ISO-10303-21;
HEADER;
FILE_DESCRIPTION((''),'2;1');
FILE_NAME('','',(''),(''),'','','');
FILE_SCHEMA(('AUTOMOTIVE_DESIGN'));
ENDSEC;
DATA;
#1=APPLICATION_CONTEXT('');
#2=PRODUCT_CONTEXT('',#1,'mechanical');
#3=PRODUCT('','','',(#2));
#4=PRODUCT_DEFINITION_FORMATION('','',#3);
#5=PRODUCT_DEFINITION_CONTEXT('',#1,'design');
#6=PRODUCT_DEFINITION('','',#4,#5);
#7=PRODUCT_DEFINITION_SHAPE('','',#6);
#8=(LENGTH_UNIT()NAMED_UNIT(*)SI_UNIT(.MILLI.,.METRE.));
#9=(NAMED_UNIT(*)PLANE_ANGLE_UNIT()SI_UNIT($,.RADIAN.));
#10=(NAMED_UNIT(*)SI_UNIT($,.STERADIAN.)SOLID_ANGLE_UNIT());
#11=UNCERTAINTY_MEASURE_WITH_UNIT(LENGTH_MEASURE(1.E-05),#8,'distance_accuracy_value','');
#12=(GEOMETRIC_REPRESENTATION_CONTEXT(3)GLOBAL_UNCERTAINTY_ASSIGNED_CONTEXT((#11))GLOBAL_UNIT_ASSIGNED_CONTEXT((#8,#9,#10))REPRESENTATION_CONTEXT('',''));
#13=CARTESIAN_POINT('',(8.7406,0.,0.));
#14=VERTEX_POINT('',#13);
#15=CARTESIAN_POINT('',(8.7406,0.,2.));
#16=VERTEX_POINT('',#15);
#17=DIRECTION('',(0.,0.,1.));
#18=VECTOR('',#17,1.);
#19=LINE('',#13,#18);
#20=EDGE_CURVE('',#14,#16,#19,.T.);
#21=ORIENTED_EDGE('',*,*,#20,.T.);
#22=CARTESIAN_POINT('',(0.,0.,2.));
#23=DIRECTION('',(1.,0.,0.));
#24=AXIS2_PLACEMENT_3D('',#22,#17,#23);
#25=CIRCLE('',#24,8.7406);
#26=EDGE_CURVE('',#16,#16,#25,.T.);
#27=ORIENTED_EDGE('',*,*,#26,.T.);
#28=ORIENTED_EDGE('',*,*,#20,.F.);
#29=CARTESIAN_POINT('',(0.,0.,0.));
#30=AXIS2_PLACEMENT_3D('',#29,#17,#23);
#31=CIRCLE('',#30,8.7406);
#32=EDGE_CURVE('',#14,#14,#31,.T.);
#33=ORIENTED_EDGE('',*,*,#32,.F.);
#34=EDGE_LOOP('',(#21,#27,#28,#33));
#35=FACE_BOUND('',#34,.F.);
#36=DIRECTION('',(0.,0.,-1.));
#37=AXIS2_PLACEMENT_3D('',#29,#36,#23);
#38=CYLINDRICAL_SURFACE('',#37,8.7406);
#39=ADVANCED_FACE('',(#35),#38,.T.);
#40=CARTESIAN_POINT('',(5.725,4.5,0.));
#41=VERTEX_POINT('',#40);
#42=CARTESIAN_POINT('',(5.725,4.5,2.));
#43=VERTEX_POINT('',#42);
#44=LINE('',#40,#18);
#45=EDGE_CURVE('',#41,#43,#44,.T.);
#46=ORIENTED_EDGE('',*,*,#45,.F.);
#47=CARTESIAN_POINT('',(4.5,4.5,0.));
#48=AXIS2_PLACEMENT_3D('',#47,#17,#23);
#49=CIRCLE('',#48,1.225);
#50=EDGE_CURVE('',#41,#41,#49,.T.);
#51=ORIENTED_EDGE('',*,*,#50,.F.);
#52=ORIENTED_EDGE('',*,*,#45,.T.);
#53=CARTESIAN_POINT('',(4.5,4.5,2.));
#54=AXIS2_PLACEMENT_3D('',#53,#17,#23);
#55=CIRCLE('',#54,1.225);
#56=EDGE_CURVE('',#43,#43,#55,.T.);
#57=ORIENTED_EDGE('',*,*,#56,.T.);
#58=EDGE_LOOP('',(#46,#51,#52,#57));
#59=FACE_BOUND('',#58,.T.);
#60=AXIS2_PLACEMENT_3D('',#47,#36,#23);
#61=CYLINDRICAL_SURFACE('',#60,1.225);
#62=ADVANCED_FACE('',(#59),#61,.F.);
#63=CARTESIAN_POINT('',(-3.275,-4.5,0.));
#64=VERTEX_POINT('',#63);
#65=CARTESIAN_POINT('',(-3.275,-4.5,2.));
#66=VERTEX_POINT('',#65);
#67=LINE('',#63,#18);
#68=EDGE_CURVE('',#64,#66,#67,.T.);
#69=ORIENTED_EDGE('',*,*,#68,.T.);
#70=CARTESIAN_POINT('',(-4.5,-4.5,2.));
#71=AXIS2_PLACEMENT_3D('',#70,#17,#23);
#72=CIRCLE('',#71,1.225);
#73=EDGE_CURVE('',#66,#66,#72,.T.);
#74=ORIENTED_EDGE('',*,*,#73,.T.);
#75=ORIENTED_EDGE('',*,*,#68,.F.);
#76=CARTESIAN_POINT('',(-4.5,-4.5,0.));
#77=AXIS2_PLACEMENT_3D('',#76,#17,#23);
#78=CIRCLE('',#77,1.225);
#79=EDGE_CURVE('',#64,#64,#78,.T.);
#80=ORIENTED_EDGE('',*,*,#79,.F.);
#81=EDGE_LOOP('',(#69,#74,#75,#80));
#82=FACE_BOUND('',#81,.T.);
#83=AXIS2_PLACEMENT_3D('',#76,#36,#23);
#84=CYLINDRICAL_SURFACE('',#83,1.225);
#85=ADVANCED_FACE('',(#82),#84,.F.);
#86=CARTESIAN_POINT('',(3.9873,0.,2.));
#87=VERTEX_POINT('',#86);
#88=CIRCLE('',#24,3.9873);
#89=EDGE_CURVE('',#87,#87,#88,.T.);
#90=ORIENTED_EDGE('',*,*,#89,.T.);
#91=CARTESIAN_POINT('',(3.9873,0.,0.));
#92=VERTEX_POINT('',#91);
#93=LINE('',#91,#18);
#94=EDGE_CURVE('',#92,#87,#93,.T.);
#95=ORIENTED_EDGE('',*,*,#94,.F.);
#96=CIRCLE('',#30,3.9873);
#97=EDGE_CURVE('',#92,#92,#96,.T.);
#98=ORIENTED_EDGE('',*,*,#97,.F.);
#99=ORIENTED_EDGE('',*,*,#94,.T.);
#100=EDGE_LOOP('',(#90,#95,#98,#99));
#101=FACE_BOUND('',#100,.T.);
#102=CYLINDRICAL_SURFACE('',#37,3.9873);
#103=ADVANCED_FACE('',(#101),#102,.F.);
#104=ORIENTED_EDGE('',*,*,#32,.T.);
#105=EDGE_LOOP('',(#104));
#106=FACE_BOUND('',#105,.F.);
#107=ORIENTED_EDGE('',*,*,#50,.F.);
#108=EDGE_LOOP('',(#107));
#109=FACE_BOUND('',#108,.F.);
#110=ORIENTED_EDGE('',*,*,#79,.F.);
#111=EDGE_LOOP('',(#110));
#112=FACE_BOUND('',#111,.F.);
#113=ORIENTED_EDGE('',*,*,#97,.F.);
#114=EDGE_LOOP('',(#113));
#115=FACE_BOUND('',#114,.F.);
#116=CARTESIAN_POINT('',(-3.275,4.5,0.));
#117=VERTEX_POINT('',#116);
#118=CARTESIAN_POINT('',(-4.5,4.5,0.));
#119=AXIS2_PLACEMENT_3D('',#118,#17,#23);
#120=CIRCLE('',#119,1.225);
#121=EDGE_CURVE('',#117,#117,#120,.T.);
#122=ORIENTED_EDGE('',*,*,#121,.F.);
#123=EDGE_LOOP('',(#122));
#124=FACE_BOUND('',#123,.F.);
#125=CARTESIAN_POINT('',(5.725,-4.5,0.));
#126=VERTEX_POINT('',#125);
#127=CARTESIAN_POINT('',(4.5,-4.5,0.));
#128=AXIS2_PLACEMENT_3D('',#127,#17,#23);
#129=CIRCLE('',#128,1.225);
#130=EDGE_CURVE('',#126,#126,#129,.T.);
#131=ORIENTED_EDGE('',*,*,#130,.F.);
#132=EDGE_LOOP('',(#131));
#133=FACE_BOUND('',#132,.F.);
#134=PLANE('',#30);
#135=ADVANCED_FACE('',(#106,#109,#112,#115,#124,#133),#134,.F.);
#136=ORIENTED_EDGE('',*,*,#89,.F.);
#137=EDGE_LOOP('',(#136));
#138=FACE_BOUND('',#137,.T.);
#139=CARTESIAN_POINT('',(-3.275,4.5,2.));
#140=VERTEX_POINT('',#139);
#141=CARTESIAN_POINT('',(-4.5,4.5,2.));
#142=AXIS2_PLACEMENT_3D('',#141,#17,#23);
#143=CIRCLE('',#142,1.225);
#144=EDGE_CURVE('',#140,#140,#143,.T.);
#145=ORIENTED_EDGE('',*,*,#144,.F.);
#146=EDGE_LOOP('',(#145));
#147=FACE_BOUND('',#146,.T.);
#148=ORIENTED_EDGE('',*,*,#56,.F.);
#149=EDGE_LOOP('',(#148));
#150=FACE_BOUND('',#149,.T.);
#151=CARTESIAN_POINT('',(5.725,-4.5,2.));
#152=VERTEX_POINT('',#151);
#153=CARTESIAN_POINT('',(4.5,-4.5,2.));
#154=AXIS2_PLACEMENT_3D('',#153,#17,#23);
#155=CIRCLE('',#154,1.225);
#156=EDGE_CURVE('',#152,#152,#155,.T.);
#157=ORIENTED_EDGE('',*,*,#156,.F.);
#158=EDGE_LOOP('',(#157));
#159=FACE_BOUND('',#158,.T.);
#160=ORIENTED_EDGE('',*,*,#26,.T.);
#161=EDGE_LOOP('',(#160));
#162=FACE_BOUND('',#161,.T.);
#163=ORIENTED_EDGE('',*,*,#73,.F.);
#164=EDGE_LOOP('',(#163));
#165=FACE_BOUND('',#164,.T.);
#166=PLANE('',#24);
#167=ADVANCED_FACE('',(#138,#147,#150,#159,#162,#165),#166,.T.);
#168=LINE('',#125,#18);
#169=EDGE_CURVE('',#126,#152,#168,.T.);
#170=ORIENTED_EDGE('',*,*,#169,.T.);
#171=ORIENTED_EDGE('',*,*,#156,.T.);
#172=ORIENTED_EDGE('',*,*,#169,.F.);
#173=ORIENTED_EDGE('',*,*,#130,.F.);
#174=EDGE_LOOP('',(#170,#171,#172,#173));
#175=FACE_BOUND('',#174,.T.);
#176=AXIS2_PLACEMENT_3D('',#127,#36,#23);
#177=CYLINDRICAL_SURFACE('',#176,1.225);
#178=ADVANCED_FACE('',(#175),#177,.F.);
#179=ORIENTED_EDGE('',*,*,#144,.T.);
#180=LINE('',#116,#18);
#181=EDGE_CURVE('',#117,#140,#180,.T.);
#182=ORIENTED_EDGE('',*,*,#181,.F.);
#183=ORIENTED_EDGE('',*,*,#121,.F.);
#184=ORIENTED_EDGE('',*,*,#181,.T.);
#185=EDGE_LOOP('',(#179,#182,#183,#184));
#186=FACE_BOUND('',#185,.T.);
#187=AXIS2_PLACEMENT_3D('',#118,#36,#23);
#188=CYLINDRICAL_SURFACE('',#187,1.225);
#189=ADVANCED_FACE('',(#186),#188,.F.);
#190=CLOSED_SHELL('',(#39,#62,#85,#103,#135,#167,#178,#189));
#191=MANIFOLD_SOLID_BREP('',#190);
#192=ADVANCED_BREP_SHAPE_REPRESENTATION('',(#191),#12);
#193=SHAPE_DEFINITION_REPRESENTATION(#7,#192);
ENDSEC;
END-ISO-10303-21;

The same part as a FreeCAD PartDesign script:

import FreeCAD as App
import Part
import Sketcher
from FreeCAD import Vector

doc = App.newDocument("Part")
body = doc.addObject("PartDesign::Body", "Body")

# Sketch on XY plane
sketch1 = body.newObject("Sketcher::SketchObject", "Sketch")
sketch1.AttachmentSupport = (doc.getObject("XY_Plane"), [""])
sketch1.MapMode = "FlatFace"
sketch1.addGeometry([
    Part.Circle(Vector(0, 0, 0), Vector(0, 0, 1), 8.7),  # 0
    Part.Circle(Vector(-4.5, -4.5, 0), Vector(0, 0, 1), 1.2),  # 1
    Part.Circle(Vector(4.5, -4.5, 0), Vector(0, 0, 1), 1.2),  # 2
    Part.Circle(Vector(-4.5, 4.5, 0), Vector(0, 0, 1), 1.2),  # 3
    Part.Circle(Vector(0, 0, 0), Vector(0, 0, 1), 4),  # 4
    Part.Circle(Vector(4.5, 4.5, 0), Vector(0, 0, 1), 1.2),  # 5
], False)
sketch1.addConstraint([
    Sketcher.Constraint("Coincident", 0, 3, -1, 1),
    Sketcher.Constraint("Coincident", 4, 3, -1, 1),
    Sketcher.Constraint("Equal", 1, 2),
    Sketcher.Constraint("Equal", 2, 3),
    Sketcher.Constraint("Equal", 3, 5),
    Sketcher.Constraint("Symmetric", 2, 3, 3, 3, -1, 1),
    Sketcher.Constraint("Symmetric", 1, 3, 5, 3, -1, 1),
    Sketcher.Constraint("Symmetric", 1, 3, 2, 3, -2),
    Sketcher.Constraint("Diameter", 1, 2.45),
    Sketcher.Constraint("DistanceX", 1, 3, 2, 3, 9.0),
    Sketcher.Constraint("DistanceY", 1, 3, 3, 3, 9.0),
    Sketcher.Constraint("Diameter", 4, 7.9746),
    Sketcher.Constraint("Diameter", 0, 17.4812),
])
pad1 = body.newObject("PartDesign::Pad", "Pad")
pad1.Profile = sketch1
pad1.Length = 2

doc.recompute()
